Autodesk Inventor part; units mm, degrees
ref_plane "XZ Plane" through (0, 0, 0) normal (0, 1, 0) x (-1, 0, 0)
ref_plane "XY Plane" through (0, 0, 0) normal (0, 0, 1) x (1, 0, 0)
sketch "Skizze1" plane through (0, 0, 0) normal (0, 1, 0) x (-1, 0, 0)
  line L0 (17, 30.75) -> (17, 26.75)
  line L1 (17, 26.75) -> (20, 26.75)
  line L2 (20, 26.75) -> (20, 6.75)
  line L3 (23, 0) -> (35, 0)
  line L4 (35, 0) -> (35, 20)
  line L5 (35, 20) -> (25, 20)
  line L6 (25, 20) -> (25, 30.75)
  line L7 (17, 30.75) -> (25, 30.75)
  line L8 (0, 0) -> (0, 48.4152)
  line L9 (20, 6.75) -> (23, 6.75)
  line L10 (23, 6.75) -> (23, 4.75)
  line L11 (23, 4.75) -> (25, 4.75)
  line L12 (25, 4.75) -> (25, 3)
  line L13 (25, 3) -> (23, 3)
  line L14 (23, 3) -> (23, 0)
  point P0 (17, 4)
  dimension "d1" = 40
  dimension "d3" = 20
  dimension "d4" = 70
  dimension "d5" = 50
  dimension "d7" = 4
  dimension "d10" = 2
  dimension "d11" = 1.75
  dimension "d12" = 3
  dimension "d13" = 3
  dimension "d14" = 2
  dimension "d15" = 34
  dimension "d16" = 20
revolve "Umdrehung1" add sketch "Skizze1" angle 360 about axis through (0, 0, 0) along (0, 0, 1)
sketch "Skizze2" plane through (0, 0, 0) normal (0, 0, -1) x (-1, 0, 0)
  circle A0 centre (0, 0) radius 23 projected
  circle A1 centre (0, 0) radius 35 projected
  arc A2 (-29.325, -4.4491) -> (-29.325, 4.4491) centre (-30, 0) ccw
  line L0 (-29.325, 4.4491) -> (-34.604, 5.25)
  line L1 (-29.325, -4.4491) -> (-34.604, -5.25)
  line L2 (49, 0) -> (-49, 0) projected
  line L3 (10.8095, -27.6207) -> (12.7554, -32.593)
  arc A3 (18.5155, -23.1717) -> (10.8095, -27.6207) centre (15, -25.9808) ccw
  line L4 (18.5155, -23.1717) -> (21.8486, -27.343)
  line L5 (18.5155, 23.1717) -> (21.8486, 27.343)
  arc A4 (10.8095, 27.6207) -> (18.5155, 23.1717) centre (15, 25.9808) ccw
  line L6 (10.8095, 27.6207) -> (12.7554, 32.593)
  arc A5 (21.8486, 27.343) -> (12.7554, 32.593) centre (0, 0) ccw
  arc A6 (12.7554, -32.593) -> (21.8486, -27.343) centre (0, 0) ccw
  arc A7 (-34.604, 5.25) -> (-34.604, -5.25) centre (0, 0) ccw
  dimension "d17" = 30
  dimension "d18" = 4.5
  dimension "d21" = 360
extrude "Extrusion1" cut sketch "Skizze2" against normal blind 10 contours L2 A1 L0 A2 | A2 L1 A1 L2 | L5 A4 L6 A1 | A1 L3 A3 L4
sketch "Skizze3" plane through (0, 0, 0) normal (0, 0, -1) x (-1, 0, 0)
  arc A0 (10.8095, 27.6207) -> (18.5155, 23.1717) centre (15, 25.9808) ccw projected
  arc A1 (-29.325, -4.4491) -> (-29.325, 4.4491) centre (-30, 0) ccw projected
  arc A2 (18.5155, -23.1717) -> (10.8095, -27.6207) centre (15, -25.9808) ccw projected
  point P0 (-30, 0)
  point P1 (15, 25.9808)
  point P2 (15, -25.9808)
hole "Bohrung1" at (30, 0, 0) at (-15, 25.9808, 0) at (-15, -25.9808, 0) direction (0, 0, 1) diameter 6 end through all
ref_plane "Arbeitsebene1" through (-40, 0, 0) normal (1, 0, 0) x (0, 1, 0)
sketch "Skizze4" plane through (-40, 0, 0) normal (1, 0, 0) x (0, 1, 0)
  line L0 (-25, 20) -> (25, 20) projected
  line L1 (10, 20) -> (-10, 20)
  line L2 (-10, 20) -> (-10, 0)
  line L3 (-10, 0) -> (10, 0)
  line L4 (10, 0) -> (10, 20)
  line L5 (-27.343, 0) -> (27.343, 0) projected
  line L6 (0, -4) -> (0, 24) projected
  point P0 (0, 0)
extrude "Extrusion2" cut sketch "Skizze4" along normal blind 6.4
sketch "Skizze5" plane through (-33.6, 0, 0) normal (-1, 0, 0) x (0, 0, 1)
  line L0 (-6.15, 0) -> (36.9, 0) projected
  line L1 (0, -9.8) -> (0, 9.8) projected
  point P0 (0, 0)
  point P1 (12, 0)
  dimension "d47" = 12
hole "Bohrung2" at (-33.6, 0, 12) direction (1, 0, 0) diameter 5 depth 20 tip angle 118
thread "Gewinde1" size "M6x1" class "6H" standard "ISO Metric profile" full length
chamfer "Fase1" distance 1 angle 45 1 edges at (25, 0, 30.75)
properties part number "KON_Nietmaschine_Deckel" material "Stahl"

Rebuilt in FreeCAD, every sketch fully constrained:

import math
import FreeCAD as App
import Part
import Sketcher


def edges_at(feature, points):
    """Names of the edges that pass closest to the given points."""
    edges = feature.Shape.Edges
    near = lambda p: min(range(len(edges)), key=lambda i: edges[i].distToShape(Part.Vertex(*p))[0])
    return sorted({f"Edge{near(p) + 1}" for p in points})


def add_polygon(sketch, points):
    """Adds a closed chain of lines whose ends are joined by coincident constraints."""
    first, n = sketch.GeometryCount, len(points)
    for a, b in zip(points, points[1:] + points[:1]):
        sketch.addGeometry(Part.LineSegment(App.Vector(*a, 0), App.Vector(*b, 0)), False)
    for i in range(n):
        sketch.addConstraint(Sketcher.Constraint("Coincident", first + i, 2, first + (i + 1) % n, 1))

doc = App.newDocument("Part")
params = doc.addObject("Spreadsheet::Sheet", "Params")
for row, (alias, value) in enumerate([
    ("sketch1_width", "3 mm"),
    ("sketch1_width2", "2 mm"),
    ("sketch1_height", "4 mm"),
    ("sketch1_height2", "20 mm"),
    ("sketch1_height3", "1.75 mm"),
    ("revolution_angle", "360 deg"),
    ("sketch2_radius", "4.5 mm"),
    ("sketch2_radius2", "35 mm"),
    ("pocket1_length", "10 mm"),
    ("sketch3_diameter", "6 mm"),
    ("hole_diameter", "6 mm"),
    ("sketch4_width", "20 mm"),
    ("pocket2_length", "6.4 mm"),
    ("sketch5_diameter", "5 mm"),
    ("hole2_diameter", "5 mm"),
    ("hole2_depth", "20 mm"),
    ("chamfer_size", "1 mm"),
], start=1):
    params.set(f"A{row}", alias)
    params.set(f"B{row}", "=" + value)
    params.setAlias(f"B{row}", alias)

body = doc.addObject("PartDesign::Body", "Body")

# Sketch on XZ plane
sketch1 = doc.addObject("Sketcher::SketchObject", "Sketch")
body.addObject(sketch1)
sketch1.AttachmentSupport = (doc.XZ_Plane, [""])
sketch1.MapMode = "FlatFace"
add_polygon(sketch1, [(-25, 30.75), (-17, 30.75), (-17, 26.75), (-20, 26.75), (-20, 6.75), (-23, 6.75), (-23, 4.75), (-25, 4.75), (-25, 3), (-23, 3), (-23, 0), (-35, 0), (-35, 20), (-25, 20)])  # lines 0-13
sketch1.addConstraint([
    Sketcher.Constraint("Horizontal", 0),
    Sketcher.Constraint("Vertical", 1),
    Sketcher.Constraint("Horizontal", 2),
    Sketcher.Constraint("Vertical", 3),
    Sketcher.Constraint("Horizontal", 4),
    Sketcher.Constraint("Vertical", 5),
    Sketcher.Constraint("Horizontal", 6),
    Sketcher.Constraint("Vertical", 7),
    Sketcher.Constraint("Horizontal", 8),
    Sketcher.Constraint("Vertical", 9),
    Sketcher.Constraint("Horizontal", 10),
    Sketcher.Constraint("Vertical", 11),
    Sketcher.Constraint("Horizontal", 12),
    Sketcher.Constraint("Vertical", 13),
    Sketcher.Constraint("PointOnObject", 9, 2, -1),
    Sketcher.Constraint("Vertical", 5, 2, 8, 2),
    Sketcher.Constraint("Vertical", 7, 2, 12, 2),
    Sketcher.Constraint("Equal", 2, 4),
    Sketcher.Constraint("Equal", 8, 5),
    Sketcher.Constraint("Equal", 4, 9),
    Sketcher.Constraint("Equal", 3, 11),
    Sketcher.Constraint("DistanceX", 2, 2, 2, 1, 3.0),
    Sketcher.Constraint("DistanceX", 6, 2, 6, 1, 2.0),
    Sketcher.Constraint("DistanceY", 1, 2, 1, 1, 4.0),
    Sketcher.Constraint("DistanceY", 3, 2, 3, 1, 20.0),
    Sketcher.Constraint("DistanceX", 2, 2, -1, 1, 20.0),
    Sketcher.Constraint("DistanceY", 7, 2, 7, 1, 1.75),
    Sketcher.Constraint("DistanceX", 10, 2, 10, 1, 12.0),
])
sketch1.setExpression("Constraints[35]", "Params.sketch1_width")
sketch1.setExpression("Constraints[36]", "Params.sketch1_width2")
sketch1.setExpression("Constraints[37]", "Params.sketch1_height")
sketch1.setExpression("Constraints[38]", "Params.sketch1_height2")
sketch1.setExpression("Constraints[40]", "Params.sketch1_height3")
revolution = doc.addObject("PartDesign::Revolution", "Revolution")
body.addObject(revolution)
revolution.Profile = sketch1
revolution.ReferenceAxis = (sketch1, ["V_Axis"])
revolution.setExpression("Angle", "Params.revolution_angle")

# Sketch on XY plane
sketch2 = doc.addObject("Sketcher::SketchObject", "Sketch001")
body.addObject(sketch2)
sketch2.AttachmentSupport = (doc.XY_Plane, [""])
sketch2.MapMode = "FlatFace"
sketch2.addGeometry([
    Part.ArcOfCircle(Part.Circle(App.Vector(0, 0, 0), App.Vector(0, 0, 1), 35), math.radians(-8.626929), math.radians(8.626929)),  # 0
    Part.LineSegment(App.Vector(34.604, -5.25, 0), App.Vector(29.325, -4.4491, 0)),  # 1
    Part.ArcOfCircle(Part.Circle(App.Vector(30, 0, 0), App.Vector(0, 0, 1), 4.500013), math.radians(98.626902), math.radians(261.373098)),  # 2
    Part.LineSegment(App.Vector(29.325, 4.4491, 0), App.Vector(34.604, 5.25, 0)),  # 3
    Part.LineSegment(App.Vector(-18.5155, 23.1717, 0), App.Vector(-21.8486, 27.343, 0)),  # 4
    Part.ArcOfCircle(Part.Circle(App.Vector(0, 0, 0), App.Vector(0, 0, 1), 35), math.radians(111.373088), math.radians(128.626828)),  # 5
    Part.LineSegment(App.Vector(-12.7554, 32.593, 0), App.Vector(-10.8095, 27.6207, 0)),  # 6
    Part.ArcOfCircle(Part.Circle(App.Vector(-15, 25.9808, 0), App.Vector(0, 0, 1), 4.499951), math.radians(-141.373002), math.radians(21.372272)),  # 7
    Part.ArcOfCircle(Part.Circle(App.Vector(0, 0, 0), App.Vector(0, 0, 1), 35), math.radians(-128.626828), math.radians(-111.373088)),  # 8
    Part.LineSegment(App.Vector(-21.8486, -27.343, 0), App.Vector(-18.5155, -23.1717, 0)),  # 9
    Part.ArcOfCircle(Part.Circle(App.Vector(-15, -25.9808, 0), App.Vector(0, 0, 1), 4.499976), math.radians(-21.372272), math.radians(141.373002)),  # 10
    Part.LineSegment(App.Vector(-10.8095, -27.6207, 0), App.Vector(-12.7554, -32.593, 0)),  # 11
], False)
sketch2.addConstraint([
    Sketcher.Constraint("Coincident", 0, 1, 1, 1),
    Sketcher.Constraint("Tangent", 1, 2, 2, 2),
    Sketcher.Constraint("Tangent", 2, 1, 3, 1),
    Sketcher.Constraint("Coincident", 3, 2, 0, 2),
    Sketcher.Constraint("Coincident", 4, 2, 5, 2),
    Sketcher.Constraint("Coincident", 5, 1, 6, 1),
    Sketcher.Constraint("Tangent", 6, 2, 7, 2),
    Sketcher.Constraint("Tangent", 7, 1, 4, 1),
    Sketcher.Constraint("Coincident", 8, 1, 9, 1),
    Sketcher.Constraint("Tangent", 9, 2, 10, 2),
    Sketcher.Constraint("Tangent", 10, 1, 11, 1),
    Sketcher.Constraint("Coincident", 11, 2, 8, 2),
    Sketcher.Constraint("Coincident", 0, 3, -1, 1),
    Sketcher.Constraint("Coincident", 5, 3, -1, 1),
    Sketcher.Constraint("Coincident", 8, 3, -1, 1),
    Sketcher.Constraint("Equal", 0, 5),
    Sketcher.Constraint("Equal", 2, 7),
    Sketcher.Constraint("Equal", 5, 8),
    Sketcher.Constraint("Equal", 7, 10),
    Sketcher.Constraint("Symmetric", 7, 3, 10, 3, -1),
    Sketcher.Constraint("Symmetric", 1, 2, 2, 1, -1),
    Sketcher.Constraint("Vertical", 4, 2, 8, 1),
    Sketcher.Constraint("Vertical", 6, 2, 10, 1),
    Sketcher.Constraint("Equal", 3, 4),
    Sketcher.Constraint("Equal", 4, 6),
    Sketcher.Constraint("Radius", 2, 4.5),
    Sketcher.Constraint("DistanceX", -1, 1, 2, 3, 30.0),
    Sketcher.Constraint("Radius", 0, 35.0),
    Sketcher.Constraint("DistanceX", 7, 3, -1, 1, 15.0),
    Sketcher.Constraint("DistanceY", 0, 1, 3, 2, 10.5),
    Sketcher.Constraint("DistanceY", 4, 2, 5, 1, 5.25),
])
sketch2.setExpression("Constraints[25]", "Params.sketch2_radius")
sketch2.setExpression("Constraints[27]", "Params.sketch2_radius2")
pocket1 = doc.addObject("PartDesign::Pocket", "Pocket")
body.addObject(pocket1)
pocket1.Profile = sketch2
pocket1.setExpression("Length", "Params.pocket1_length")
pocket1.Reversed = True

# Sketch on XY plane
sketch3 = doc.addObject("Sketcher::SketchObject", "Sketch002")
body.addObject(sketch3)
sketch3.AttachmentSupport = (doc.XY_Plane, [""])
sketch3.MapMode = "FlatFace"
sketch3.addGeometry([
    Part.Circle(App.Vector(30, 0, 0), App.Vector(0, 0, 1), 3),
    Part.Circle(App.Vector(-15, 25.9808, 0), App.Vector(0, 0, 1), 3),
    Part.Circle(App.Vector(-15, -25.9808, 0), App.Vector(0, 0, 1), 3),
], False)
sketch3.addConstraint([
    Sketcher.Constraint("Equal", 0, 1),
    Sketcher.Constraint("Equal", 1, 2),
    Sketcher.Constraint("Symmetric", 1, 3, 2, 3, -1),
    Sketcher.Constraint("PointOnObject", 0, 3, -1),
    Sketcher.Constraint("Diameter", 0, 6.0),
    Sketcher.Constraint("DistanceX", -1, 1, 0, 3, 30.0),
    Sketcher.Constraint("DistanceX", 1, 3, -1, 1, 15.0),
    Sketcher.Constraint("DistanceY", -1, 1, 1, 3, 25.9808),
])
sketch3.setExpression("Constraints[4]", "Params.sketch3_diameter")
doc.recompute()
hole = doc.addObject("PartDesign::Hole", "Hole")
body.addObject(hole)
hole.Profile = sketch3
hole.ThreadType = "None"
hole.setExpression("Diameter", "Params.hole_diameter")
hole.DepthType = "ThroughAll"
hole.Reversed = True

# Sketch on YZ plane
sketch4 = doc.addObject("Sketcher::SketchObject", "Sketch003")
body.addObject(sketch4)
sketch4.AttachmentSupport = (doc.YZ_Plane, [""])
sketch4.MapMode = "FlatFace"
sketch4.AttachmentOffset = App.Placement(App.Vector(0, 0, -40), App.Rotation())
add_polygon(sketch4, [(-10, 20), (-10, 0), (10, 0), (10, 20)])  # lines 0-3
sketch4.addConstraint([
    Sketcher.Constraint("Vertical", 0),
    Sketcher.Constraint("Horizontal", 1),
    Sketcher.Constraint("Vertical", 2),
    Sketcher.Constraint("Horizontal", 3),
    Sketcher.Constraint("Symmetric", 0, 2, 1, 2, -1, 1),
    Sketcher.Constraint("Equal", 3, 0),
    Sketcher.Constraint("DistanceX", 1, 1, 1, 2, 20.0),
])
sketch4.setExpression("Constraints[10]", "Params.sketch4_width")
pocket2 = doc.addObject("PartDesign::Pocket", "Pocket001")
body.addObject(pocket2)
pocket2.Profile = sketch4
pocket2.setExpression("Length", "Params.pocket2_length")
pocket2.Reversed = True

# Sketch on YZ plane
sketch5 = doc.addObject("Sketcher::SketchObject", "Sketch004")
body.addObject(sketch5)
sketch5.AttachmentSupport = (doc.YZ_Plane, [""])
sketch5.MapMode = "FlatFace"
sketch5.AttachmentOffset = App.Placement(App.Vector(0, 0, -33.6), App.Rotation())
sketch5.addGeometry(Part.Circle(App.Vector(0, 12, 0), App.Vector(0, 0, 1), 2.5), False)
sketch5.addConstraint([
    Sketcher.Constraint("PointOnObject", 0, 3, -2),
    Sketcher.Constraint("Diameter", 0, 5.0),
    Sketcher.Constraint("DistanceY", -1, 1, 0, 3, 12.0),
])
sketch5.setExpression("Constraints[1]", "Params.sketch5_diameter")
doc.recompute()
hole2 = doc.addObject("PartDesign::Hole", "Hole001")
body.addObject(hole2)
hole2.Profile = sketch5
hole2.ThreadType = "None"
hole2.setExpression("Diameter", "Params.hole2_diameter")
hole2.DepthType = "Dimension"
hole2.setExpression("Depth", "Params.hole2_depth")
hole2.DrillPoint = "Angled"
hole2.DrillPointAngle = 118
hole2.Reversed = True
doc.recompute()

chamfer = doc.addObject("PartDesign::Chamfer", "Chamfer")
body.addObject(chamfer)
chamfer.Base = (hole2, edges_at(hole2, [(25, 0, 30.75)]))
chamfer.setExpression("Size", "Params.chamfer_size")

doc.recompute()
